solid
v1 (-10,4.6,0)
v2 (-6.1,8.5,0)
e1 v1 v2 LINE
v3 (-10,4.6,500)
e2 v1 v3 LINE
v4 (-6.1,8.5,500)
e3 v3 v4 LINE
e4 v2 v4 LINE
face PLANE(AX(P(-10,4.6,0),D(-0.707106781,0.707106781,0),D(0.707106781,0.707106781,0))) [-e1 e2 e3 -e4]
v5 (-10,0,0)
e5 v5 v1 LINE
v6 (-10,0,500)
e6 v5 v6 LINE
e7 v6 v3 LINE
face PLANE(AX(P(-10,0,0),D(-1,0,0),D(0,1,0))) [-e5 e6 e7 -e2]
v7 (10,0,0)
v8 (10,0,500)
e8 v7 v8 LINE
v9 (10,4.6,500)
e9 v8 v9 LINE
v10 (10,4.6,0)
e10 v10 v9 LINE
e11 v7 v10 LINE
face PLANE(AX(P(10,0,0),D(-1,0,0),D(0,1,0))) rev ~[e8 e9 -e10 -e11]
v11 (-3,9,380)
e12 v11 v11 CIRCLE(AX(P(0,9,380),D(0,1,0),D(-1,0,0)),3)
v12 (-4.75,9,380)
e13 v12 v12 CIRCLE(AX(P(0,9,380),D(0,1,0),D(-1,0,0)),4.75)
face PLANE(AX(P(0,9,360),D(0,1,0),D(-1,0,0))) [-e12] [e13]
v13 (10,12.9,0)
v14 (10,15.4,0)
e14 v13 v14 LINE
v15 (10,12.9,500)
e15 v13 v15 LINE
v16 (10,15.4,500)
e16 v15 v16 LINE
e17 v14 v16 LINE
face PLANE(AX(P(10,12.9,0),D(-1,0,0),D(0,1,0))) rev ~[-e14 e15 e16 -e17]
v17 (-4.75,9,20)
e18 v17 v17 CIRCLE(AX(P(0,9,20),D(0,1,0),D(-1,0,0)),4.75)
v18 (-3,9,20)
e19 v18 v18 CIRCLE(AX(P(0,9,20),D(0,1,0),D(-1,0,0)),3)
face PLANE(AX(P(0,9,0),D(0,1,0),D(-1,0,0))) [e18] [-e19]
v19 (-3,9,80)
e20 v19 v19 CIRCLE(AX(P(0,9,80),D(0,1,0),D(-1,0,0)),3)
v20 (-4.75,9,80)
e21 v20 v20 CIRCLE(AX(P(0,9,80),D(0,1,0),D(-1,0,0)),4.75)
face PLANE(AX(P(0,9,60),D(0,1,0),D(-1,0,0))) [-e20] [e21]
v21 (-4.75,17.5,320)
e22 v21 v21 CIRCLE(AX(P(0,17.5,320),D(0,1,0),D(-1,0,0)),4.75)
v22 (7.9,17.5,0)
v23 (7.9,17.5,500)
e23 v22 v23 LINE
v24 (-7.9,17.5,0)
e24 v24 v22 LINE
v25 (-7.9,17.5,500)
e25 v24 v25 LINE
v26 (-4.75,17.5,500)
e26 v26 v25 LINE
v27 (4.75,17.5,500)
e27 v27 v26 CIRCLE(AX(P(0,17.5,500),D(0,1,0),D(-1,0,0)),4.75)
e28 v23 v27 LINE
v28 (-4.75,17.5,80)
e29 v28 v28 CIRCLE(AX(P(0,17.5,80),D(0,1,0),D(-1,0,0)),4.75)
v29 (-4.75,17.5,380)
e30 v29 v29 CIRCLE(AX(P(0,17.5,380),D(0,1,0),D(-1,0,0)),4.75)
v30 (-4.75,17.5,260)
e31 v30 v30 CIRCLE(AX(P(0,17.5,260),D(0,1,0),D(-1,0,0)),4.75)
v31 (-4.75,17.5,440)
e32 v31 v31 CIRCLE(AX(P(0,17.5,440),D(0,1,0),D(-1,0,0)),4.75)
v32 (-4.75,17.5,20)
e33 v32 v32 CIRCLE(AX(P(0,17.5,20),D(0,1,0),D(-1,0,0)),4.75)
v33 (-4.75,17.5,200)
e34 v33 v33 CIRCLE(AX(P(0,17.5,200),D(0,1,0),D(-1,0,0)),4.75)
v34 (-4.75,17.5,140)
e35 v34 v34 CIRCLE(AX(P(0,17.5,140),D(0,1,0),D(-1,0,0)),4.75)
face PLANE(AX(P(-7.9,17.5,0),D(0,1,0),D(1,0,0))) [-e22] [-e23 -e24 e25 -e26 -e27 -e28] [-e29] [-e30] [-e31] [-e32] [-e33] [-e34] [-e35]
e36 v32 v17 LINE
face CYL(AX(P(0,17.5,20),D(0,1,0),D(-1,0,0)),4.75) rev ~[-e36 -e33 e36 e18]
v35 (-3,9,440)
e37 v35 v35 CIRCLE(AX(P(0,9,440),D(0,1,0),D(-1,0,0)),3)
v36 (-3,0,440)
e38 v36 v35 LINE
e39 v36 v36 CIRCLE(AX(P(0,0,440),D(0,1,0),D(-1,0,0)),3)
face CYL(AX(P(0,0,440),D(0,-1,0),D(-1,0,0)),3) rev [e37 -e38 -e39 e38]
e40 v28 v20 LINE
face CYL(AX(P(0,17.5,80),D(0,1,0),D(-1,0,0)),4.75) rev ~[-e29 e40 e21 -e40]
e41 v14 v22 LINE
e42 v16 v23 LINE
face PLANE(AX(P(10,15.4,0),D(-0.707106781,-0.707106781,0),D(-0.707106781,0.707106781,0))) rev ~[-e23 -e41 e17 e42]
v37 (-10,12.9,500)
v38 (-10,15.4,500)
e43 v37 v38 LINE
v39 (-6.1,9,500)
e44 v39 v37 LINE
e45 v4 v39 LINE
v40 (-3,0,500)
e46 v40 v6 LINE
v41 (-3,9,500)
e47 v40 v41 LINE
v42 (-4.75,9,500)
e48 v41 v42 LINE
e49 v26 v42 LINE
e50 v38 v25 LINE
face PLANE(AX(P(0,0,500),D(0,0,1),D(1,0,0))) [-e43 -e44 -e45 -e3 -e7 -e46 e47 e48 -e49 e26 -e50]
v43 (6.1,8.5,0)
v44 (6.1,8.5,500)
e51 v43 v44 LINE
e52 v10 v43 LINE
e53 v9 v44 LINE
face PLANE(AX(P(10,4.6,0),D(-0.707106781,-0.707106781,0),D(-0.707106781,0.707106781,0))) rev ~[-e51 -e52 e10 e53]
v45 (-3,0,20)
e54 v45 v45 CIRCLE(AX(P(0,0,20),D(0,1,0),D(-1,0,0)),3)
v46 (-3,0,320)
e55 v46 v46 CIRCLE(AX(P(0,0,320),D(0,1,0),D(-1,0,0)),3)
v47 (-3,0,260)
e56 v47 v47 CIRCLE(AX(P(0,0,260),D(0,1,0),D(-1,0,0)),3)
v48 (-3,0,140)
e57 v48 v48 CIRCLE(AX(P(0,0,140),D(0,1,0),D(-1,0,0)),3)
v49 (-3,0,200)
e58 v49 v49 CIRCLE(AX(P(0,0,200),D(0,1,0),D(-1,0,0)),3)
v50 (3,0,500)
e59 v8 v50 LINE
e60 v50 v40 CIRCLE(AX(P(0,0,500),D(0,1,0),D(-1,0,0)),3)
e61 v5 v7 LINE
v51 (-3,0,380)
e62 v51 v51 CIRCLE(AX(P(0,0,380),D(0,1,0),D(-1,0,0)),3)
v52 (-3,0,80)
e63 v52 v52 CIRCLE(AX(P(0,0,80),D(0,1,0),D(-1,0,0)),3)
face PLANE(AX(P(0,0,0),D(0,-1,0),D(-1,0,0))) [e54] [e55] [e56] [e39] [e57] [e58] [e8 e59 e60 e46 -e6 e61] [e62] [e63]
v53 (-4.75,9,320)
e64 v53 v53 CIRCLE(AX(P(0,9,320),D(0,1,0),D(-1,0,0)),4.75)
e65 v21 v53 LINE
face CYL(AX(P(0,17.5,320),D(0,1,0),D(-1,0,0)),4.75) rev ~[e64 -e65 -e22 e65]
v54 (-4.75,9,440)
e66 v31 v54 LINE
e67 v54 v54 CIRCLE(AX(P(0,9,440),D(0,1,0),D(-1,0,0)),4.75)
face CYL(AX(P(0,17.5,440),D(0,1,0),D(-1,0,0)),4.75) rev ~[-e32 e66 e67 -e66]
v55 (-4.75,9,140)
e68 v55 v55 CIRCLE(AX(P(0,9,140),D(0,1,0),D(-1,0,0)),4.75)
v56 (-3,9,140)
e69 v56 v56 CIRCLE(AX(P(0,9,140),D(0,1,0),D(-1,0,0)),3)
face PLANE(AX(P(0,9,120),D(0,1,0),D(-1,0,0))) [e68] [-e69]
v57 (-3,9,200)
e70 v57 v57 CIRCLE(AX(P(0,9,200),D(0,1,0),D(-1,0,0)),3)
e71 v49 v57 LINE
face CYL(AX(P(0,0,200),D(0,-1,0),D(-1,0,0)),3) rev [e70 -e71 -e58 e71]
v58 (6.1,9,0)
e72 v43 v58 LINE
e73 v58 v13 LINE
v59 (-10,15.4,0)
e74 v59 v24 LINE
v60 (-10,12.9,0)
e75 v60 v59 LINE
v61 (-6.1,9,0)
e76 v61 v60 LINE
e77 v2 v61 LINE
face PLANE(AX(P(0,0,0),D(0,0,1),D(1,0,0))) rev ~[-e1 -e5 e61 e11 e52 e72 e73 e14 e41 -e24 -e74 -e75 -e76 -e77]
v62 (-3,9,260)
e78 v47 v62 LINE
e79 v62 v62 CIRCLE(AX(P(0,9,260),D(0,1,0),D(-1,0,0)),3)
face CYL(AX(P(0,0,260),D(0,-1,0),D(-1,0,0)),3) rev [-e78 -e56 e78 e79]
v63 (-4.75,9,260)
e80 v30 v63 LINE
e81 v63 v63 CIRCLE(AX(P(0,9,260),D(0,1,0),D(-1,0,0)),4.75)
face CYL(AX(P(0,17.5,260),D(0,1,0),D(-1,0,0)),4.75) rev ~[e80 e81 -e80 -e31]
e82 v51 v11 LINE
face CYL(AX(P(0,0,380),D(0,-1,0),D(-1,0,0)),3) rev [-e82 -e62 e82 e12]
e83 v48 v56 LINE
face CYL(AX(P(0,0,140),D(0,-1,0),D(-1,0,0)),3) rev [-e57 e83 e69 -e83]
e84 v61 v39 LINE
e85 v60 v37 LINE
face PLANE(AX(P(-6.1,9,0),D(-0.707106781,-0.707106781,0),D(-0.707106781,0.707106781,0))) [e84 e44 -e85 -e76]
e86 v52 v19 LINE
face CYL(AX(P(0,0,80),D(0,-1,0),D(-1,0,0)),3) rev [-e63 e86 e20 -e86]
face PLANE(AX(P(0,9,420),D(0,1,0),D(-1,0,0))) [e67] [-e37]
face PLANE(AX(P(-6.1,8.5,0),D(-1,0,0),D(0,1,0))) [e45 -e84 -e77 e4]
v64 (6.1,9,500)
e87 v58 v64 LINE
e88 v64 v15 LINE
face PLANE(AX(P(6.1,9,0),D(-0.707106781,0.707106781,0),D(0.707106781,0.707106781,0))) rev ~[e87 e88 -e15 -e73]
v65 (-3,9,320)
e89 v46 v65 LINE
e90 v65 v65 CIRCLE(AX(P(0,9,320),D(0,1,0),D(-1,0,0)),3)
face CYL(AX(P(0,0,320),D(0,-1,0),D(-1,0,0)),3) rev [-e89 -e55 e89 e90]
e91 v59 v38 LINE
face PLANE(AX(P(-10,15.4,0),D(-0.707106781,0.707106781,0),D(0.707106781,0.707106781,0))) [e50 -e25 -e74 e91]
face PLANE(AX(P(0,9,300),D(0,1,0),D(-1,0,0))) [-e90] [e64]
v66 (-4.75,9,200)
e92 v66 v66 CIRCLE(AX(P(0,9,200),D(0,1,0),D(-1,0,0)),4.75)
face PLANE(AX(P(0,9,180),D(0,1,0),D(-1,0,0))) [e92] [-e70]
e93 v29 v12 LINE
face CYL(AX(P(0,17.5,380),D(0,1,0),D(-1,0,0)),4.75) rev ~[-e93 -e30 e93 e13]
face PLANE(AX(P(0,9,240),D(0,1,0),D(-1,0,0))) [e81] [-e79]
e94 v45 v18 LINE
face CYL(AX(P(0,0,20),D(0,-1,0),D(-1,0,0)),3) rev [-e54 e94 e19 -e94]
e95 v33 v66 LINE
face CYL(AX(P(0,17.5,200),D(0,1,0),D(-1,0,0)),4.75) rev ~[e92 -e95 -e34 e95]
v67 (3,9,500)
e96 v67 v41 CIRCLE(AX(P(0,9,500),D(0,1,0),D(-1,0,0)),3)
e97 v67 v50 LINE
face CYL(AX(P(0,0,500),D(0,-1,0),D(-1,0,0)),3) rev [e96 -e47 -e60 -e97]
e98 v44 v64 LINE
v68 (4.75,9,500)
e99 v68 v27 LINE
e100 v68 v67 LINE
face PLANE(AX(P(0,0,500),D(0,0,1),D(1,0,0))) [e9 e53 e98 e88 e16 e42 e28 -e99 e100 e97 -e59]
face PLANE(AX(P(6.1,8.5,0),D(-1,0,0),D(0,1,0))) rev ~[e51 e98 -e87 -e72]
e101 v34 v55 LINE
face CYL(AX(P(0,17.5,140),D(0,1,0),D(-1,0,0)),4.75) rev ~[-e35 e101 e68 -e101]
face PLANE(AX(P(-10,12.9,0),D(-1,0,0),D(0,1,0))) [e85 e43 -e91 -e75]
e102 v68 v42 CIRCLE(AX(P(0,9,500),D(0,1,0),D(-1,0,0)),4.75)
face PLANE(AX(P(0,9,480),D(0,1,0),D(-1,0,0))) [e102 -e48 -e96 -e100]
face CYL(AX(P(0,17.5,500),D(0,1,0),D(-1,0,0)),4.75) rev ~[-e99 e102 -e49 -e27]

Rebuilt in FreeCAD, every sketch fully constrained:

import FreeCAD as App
import Part
import Sketcher

V = App.Vector


def add_polygon(sketch, points):
    """Adds a closed chain of lines whose ends are joined by coincident constraints."""
    first, n = sketch.GeometryCount, len(points)
    for a, b in zip(points, points[1:] + points[:1]):
        sketch.addGeometry(Part.LineSegment(App.Vector(*a, 0), App.Vector(*b, 0)), False)
    for i in range(n):
        sketch.addConstraint(Sketcher.Constraint("Coincident", first + i, 2, first + (i + 1) % n, 1))

doc = App.newDocument("Part")
params = doc.addObject("Spreadsheet::Sheet", "Params")
for row, (alias, value) in enumerate([
    ("sketch1_width", "20 mm"),
    ("sketch1_height", "4.6 mm"),
    ("sketch1_height2", "0.5 mm"),
    ("sketch1_height3", "2.5 mm"),
    ("pad1_length", "500 mm"),
    ("sketch2_diameter", "6 mm"),
    ("sketch3_diameter", "6 mm"),
    ("sketch3_diameter2", "9.5 mm"),
    ("pocket2_length", "8.5 mm"),
    ("linearpattern_pitch", "60 mm"),
], start=1):
    params.set(f"A{row}", alias)
    params.set(f"B{row}", "=" + value)
    params.setAlias(f"B{row}", alias)

body = doc.addObject("PartDesign::Body", "Body")

# Sketch on XY plane
sketch1 = body.newObject("Sketcher::SketchObject", "Sketch")
sketch1.AttachmentSupport = (doc.getObject("XY_Plane"), [""])
sketch1.MapMode = "FlatFace"
add_polygon(sketch1, [(-10, 0), (10, 0), (10, 4.6), (6.1, 8.5), (6.1, 9), (10, 12.9), (10, 15.4), (7.9, 17.5), (-7.9, 17.5), (-10, 15.4), (-10, 12.9), (-6.1, 9), (-6.1, 8.5), (-10, 4.6)])  # lines 0-13
sketch1.addConstraint([
    Sketcher.Constraint("Horizontal", 0),
    Sketcher.Constraint("Vertical", 1),
    Sketcher.Constraint("Vertical", 3),
    Sketcher.Constraint("Vertical", 5),
    Sketcher.Constraint("Horizontal", 7),
    Sketcher.Constraint("Vertical", 9),
    Sketcher.Constraint("Vertical", 11),
    Sketcher.Constraint("Vertical", 13),
    Sketcher.Constraint("Symmetric", 0, 2, 13, 2, -1, 1),
    Sketcher.Constraint("Symmetric", 5, 2, 8, 2, -2),
    Sketcher.Constraint("Symmetric", 3, 2, 10, 2, -2),
    Sketcher.Constraint("Perpendicular", 2, 4),
    Sketcher.Constraint("Perpendicular", 4, 6),
    Sketcher.Constraint("Perpendicular", 6, 8),
    Sketcher.Constraint("Perpendicular", 8, 10),
    Sketcher.Constraint("Perpendicular", 10, 12),
    Sketcher.Constraint("Horizontal", 4, 2, 9, 2),
    Sketcher.Constraint("Horizontal", 2, 2, 11, 2),
    Sketcher.Constraint("Vertical", 1, 2, 4, 2),
    Sketcher.Constraint("DistanceX", 0, 1, 0, 2, 20.0),
    Sketcher.Constraint("DistanceY", 1, 1, 1, 2, 4.6),
    Sketcher.Constraint("DistanceY", 3, 1, 3, 2, 0.5),
    Sketcher.Constraint("DistanceY", 5, 1, 5, 2, 2.5),
    Sketcher.Constraint("DistanceY", -1, 1, 2, 2, 8.5),
    Sketcher.Constraint("DistanceY", -1, 1, 6, 2, 17.5),
])
sketch1.setExpression("Constraints[33]", "Params.sketch1_width")
sketch1.setExpression("Constraints[34]", "Params.sketch1_height")
sketch1.setExpression("Constraints[35]", "Params.sketch1_height2")
sketch1.setExpression("Constraints[36]", "Params.sketch1_height3")
pad1 = body.newObject("PartDesign::Pad", "Pad")
pad1.Profile = sketch1
pad1.setExpression("Length", "Params.pad1_length")

# Sketch on XZ plane
sketch2 = body.newObject("Sketcher::SketchObject", "Sketch001")
sketch2.AttachmentSupport = (doc.getObject("XZ_Plane"), [""])
sketch2.MapMode = "FlatFace"
sketch2.addGeometry(Part.Circle(V(0, 20, 0), V(0, 0, 1), 3), False)
sketch2.addConstraint([
    Sketcher.Constraint("PointOnObject", 0, 3, -2),
    Sketcher.Constraint("Diameter", 0, 6.0),
    Sketcher.Constraint("DistanceY", -1, 1, 0, 3, 20.0),
])
sketch2.setExpression("Constraints[1]", "Params.sketch2_diameter")
pocket1 = body.newObject("PartDesign::Pocket", "Pocket")
pocket1.Profile = sketch2
pocket1.Type = "ThroughAll"

# Sketch on XZ plane
sketch3 = body.newObject("Sketcher::SketchObject", "Sketch002")
sketch3.AttachmentSupport = (doc.getObject("XZ_Plane"), [""])
sketch3.MapMode = "FlatFace"
sketch3.AttachmentOffset = App.Placement(V(0, 0, -17.5), App.Rotation())
sketch3.addGeometry([
    Part.Circle(V(0, 20, 0), V(0, 0, 1), 4.8),
    Part.Circle(V(0, 20, 0), V(0, 0, 1), 3),
], False)
sketch3.addConstraint([
    Sketcher.Constraint("Coincident", 1, 3, 0, 3),
    Sketcher.Constraint("PointOnObject", 0, 3, -2),
    Sketcher.Constraint("Diameter", 1, 6.0),
    Sketcher.Constraint("Diameter", 0, 9.5),
    Sketcher.Constraint("DistanceY", -1, 1, 0, 3, 20.0),
])
sketch3.setExpression("Constraints[2]", "Params.sketch3_diameter")
sketch3.setExpression("Constraints[3]", "Params.sketch3_diameter2")
pocket2 = body.newObject("PartDesign::Pocket", "Pocket001")
pocket2.Profile = sketch3
pocket2.setExpression("Length", "Params.pocket2_length")
pocket2.Reversed = True
doc.recompute()

linearpattern = body.newObject("PartDesign::LinearPattern", "LinearPattern")
linearpattern.Originals = [pocket1, pocket2]
linearpattern.Direction = (doc.getObject("Z_Axis"), [""])
linearpattern.Mode = "offset"
linearpattern.setExpression("Offset", "Params.linearpattern_pitch")
linearpattern.Occurrences = 9
body.Tip = linearpattern

doc.recompute()
